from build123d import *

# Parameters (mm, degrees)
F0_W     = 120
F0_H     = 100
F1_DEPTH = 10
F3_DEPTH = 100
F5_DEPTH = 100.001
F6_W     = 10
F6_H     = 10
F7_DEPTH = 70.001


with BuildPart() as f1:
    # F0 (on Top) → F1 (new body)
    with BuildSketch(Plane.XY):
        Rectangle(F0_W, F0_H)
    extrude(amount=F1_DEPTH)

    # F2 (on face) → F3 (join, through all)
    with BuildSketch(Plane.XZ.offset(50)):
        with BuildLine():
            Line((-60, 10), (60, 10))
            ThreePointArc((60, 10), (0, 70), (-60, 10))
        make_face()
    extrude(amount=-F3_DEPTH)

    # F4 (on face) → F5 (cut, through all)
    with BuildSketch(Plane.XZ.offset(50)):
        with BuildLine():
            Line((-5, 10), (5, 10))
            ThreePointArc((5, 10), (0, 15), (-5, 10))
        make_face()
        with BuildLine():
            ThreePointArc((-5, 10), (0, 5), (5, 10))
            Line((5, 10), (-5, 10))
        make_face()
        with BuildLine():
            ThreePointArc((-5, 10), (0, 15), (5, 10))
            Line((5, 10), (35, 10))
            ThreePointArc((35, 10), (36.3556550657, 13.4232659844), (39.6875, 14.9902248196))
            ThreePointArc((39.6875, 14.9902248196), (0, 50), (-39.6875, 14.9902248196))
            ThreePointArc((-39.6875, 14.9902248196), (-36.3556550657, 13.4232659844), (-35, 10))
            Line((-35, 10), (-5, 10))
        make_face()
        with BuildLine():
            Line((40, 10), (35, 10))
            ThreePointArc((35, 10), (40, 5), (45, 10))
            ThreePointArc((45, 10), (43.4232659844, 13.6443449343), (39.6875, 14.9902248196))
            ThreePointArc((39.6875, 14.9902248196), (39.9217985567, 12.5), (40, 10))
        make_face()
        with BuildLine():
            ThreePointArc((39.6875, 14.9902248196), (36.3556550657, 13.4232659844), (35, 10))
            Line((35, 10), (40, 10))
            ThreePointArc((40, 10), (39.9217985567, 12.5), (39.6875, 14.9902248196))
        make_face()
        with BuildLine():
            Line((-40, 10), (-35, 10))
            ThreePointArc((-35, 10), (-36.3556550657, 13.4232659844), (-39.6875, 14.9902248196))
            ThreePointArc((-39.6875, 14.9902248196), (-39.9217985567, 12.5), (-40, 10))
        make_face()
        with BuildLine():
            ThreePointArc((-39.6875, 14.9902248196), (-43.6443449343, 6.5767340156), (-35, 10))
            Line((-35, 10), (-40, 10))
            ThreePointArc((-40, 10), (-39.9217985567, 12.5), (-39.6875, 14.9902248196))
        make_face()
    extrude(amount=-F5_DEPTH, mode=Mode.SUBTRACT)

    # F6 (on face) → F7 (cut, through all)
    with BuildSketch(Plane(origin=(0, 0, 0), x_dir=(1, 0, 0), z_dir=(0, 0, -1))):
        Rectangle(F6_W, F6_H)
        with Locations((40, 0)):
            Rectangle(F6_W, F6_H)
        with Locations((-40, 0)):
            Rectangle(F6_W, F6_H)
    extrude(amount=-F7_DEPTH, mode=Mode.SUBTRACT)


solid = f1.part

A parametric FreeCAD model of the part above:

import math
import FreeCAD as App
import Part
import Sketcher


def add_polygon(sketch, points):
    """Adds a closed chain of lines whose ends are joined by coincident constraints."""
    first, n = sketch.GeometryCount, len(points)
    for a, b in zip(points, points[1:] + points[:1]):
        sketch.addGeometry(Part.LineSegment(App.Vector(*a, 0), App.Vector(*b, 0)), False)
    for i in range(n):
        sketch.addConstraint(Sketcher.Constraint("Coincident", first + i, 2, first + (i + 1) % n, 1))

doc = App.newDocument("Part")
params = doc.addObject("Spreadsheet::Sheet", "Params")
for row, (alias, value) in enumerate([
    ("sketch1_width", "120 mm"),
    ("sketch1_height", "100 mm"),
    ("pad1_length", "10 mm"),
    ("sketch2_radius", "60 mm"),
    ("pad2_length", "100 mm"),
    ("sketch3_radius", "5 mm"),
    ("sketch3_radius2", "40 mm"),
    ("sketch3_width", "30 mm"),
    ("sketch4_width", "10 mm"),
], start=1):
    params.set(f"A{row}", alias)
    params.set(f"B{row}", "=" + value)
    params.setAlias(f"B{row}", alias)

body = doc.addObject("PartDesign::Body", "Body")

# Sketch on XY plane
sketch1 = doc.addObject("Sketcher::SketchObject", "Sketch")
body.addObject(sketch1)
sketch1.AttachmentSupport = (doc.XY_Plane, [""])
sketch1.MapMode = "FlatFace"
add_polygon(sketch1, [(-60, 50), (-60, -50), (60, -50), (60, 50)])  # lines 0-3
sketch1.addConstraint([
    Sketcher.Constraint("Vertical", 0),
    Sketcher.Constraint("Horizontal", 1),
    Sketcher.Constraint("Vertical", 2),
    Sketcher.Constraint("Horizontal", 3),
    Sketcher.Constraint("Symmetric", 0, 2, 2, 2, -1, 1),
    Sketcher.Constraint("DistanceX", 1, 1, 1, 2, 120.0),
    Sketcher.Constraint("DistanceY", 0, 2, 0, 1, 100.0),
])
sketch1.setExpression("Constraints[9]", "Params.sketch1_width")
sketch1.setExpression("Constraints[10]", "Params.sketch1_height")
pad1 = doc.addObject("PartDesign::Pad", "Pad")
body.addObject(pad1)
pad1.Profile = sketch1
pad1.setExpression("Length", "Params.pad1_length")

# Sketch on XZ plane
sketch2 = doc.addObject("Sketcher::SketchObject", "Sketch001")
body.addObject(sketch2)
sketch2.AttachmentSupport = (doc.XZ_Plane, [""])
sketch2.MapMode = "FlatFace"
sketch2.AttachmentOffset = App.Placement(App.Vector(0, 0, 50), App.Rotation())
sketch2.addGeometry([
    Part.LineSegment(App.Vector(-60, 10, 0), App.Vector(60, 10, 0)),
    Part.ArcOfCircle(Part.Circle(App.Vector(0, 10, 0), App.Vector(0, 0, 1), 60), math.radians(0), math.radians(180)),
], False)
sketch2.addConstraint([
    Sketcher.Constraint("Coincident", 0, 1, 1, 2),
    Sketcher.Constraint("Coincident", 1, 1, 0, 2),
    Sketcher.Constraint("Horizontal", 0),
    Sketcher.Constraint("PointOnObject", 1, 3, -2),
    Sketcher.Constraint("Horizontal", 1, 3, 0, 1),
    Sketcher.Constraint("Radius", 1, 60.0),
    Sketcher.Constraint("DistanceY", -1, 1, 1, 3, 10.0),
])
sketch2.setExpression("Constraints[5]", "Params.sketch2_radius")
pad2 = doc.addObject("PartDesign::Pad", "Pad001")
body.addObject(pad2)
pad2.Profile = sketch2
pad2.setExpression("Length", "Params.pad2_length")
pad2.Reversed = True

# Sketch on XZ plane
sketch3 = doc.addObject("Sketcher::SketchObject", "Sketch002")
body.addObject(sketch3)
sketch3.AttachmentSupport = (doc.XZ_Plane, [""])
sketch3.MapMode = "FlatFace"
sketch3.AttachmentOffset = App.Placement(App.Vector(0, 0, 50), App.Rotation())
sketch3.addGeometry([
    Part.ArcOfCircle(Part.Circle(App.Vector(0, 10, 0), App.Vector(0, 0, 1), 5), math.radians(180), math.radians(360)),  # 0
    Part.LineSegment(App.Vector(5, 10, 0), App.Vector(35, 10, 0)),  # 1
    Part.ArcOfCircle(Part.Circle(App.Vector(40, 10, 0), App.Vector(0, 0, 1), 5), math.radians(180), math.radians(360)),  # 2
    Part.ArcOfCircle(Part.Circle(App.Vector(40, 10, 0), App.Vector(0, 0, 1), 5), math.radians(0), math.radians(94)),  # 3
    Part.ArcOfCircle(Part.Circle(App.Vector(0, 10, 0), App.Vector(0, 0, 1), 40), math.radians(7), math.radians(173)),  # 4
    Part.ArcOfCircle(Part.Circle(App.Vector(-40, 10, 0), App.Vector(0, 0, 1), 5), math.radians(86), math.radians(360)),  # 5
    Part.LineSegment(App.Vector(-35, 10, 0), App.Vector(-5, 10, 0)),  # 6
], False)
sketch3.addConstraint([
    Sketcher.Constraint("Coincident", 0, 2, 1, 1),
    Sketcher.Constraint("Coincident", 1, 2, 2, 1),
    Sketcher.Constraint("Tangent", 2, 2, 3, 1),
    Sketcher.Constraint("Coincident", 3, 2, 4, 1),
    Sketcher.Constraint("Coincident", 4, 2, 5, 1),
    Sketcher.Constraint("Coincident", 5, 2, 6, 1),
    Sketcher.Constraint("Coincident", 6, 2, 0, 1),
    Sketcher.Constraint("Horizontal", 1),
    Sketcher.Constraint("Horizontal", 6),
    Sketcher.Constraint("Coincident", 4, 3, 0, 3),
    Sketcher.Constraint("Equal", 0, 2),
    Sketcher.Constraint("Equal", 2, 3),
    Sketcher.Constraint("Equal", 3, 5),
    Sketcher.Constraint("Symmetric", 2, 3, 5, 3, -2),
    Sketcher.Constraint("Symmetric", 0, 2, 6, 2, -2),
    Sketcher.Constraint("Horizontal", 0, 3, 2, 3),
    Sketcher.Constraint("Horizontal", 5, 3, 0, 2),
    Sketcher.Constraint("Horizontal", 1, 2, 2, 2),
    Sketcher.Constraint("Radius", 0, 5.0),
    Sketcher.Constraint("Radius", 4, 40.0),
    Sketcher.Constraint("DistanceX", 1, 1, 1, 2, 30.0),
    Sketcher.Constraint("DistanceY", -1, 1, 0, 3, 10.0),
])
sketch3.setExpression("Constraints[18]", "Params.sketch3_radius")
sketch3.setExpression("Constraints[19]", "Params.sketch3_radius2")
sketch3.setExpression("Constraints[20]", "Params.sketch3_width")
pocket1 = doc.addObject("PartDesign::Pocket", "Pocket")
body.addObject(pocket1)
pocket1.Profile = sketch3
pocket1.Type = "ThroughAll"

# Sketch on XY plane
sketch4 = doc.addObject("Sketcher::SketchObject", "Sketch003")
body.addObject(sketch4)
sketch4.AttachmentSupport = (doc.XY_Plane, [""])
sketch4.MapMode = "FlatFace"
add_polygon(sketch4, [(-5, -5), (-5, 5), (5, 5), (5, -5)])  # lines 0-3
add_polygon(sketch4, [(35, -5), (35, 5), (45, 5), (45, -5)])  # lines 4-7
add_polygon(sketch4, [(-45, -5), (-45, 5), (-35, 5), (-35, -5)])  # lines 8-11
sketch4.addConstraint([
    Sketcher.Constraint("Vertical", 0),
    Sketcher.Constraint("Horizontal", 1),
    Sketcher.Constraint("Vertical", 2),
    Sketcher.Constraint("Horizontal", 3),
    Sketcher.Constraint("Vertical", 4),
    Sketcher.Constraint("Horizontal", 5),
    Sketcher.Constraint("Vertical", 6),
    Sketcher.Constraint("Horizontal", 7),
    Sketcher.Constraint("Vertical", 8),
    Sketcher.Constraint("Horizontal", 9),
    Sketcher.Constraint("Vertical", 10),
    Sketcher.Constraint("Horizontal", 11),
    Sketcher.Constraint("Symmetric", 0, 2, 2, 2, -1, 1),
    Sketcher.Constraint("Symmetric", 6, 2, 8, 2, -1, 1),
    Sketcher.Constraint("Symmetric", 4, 2, 10, 2, -1, 1),
    Sketcher.Constraint("Horizontal", 1, 2, 4, 2),
    Sketcher.Constraint("Horizontal", 3, 2, 6, 2),
    Sketcher.Constraint("Equal", 3, 5),
    Sketcher.Constraint("Equal", 11, 0),
    Sketcher.Constraint("DistanceX", 1, 1, 1, 2, 10.0),
    Sketcher.Constraint("DistanceX", -1, 1, 4, 2, 35.0),
])
sketch4.setExpression("Constraints[31]", "Params.sketch4_width")
pocket2 = doc.addObject("PartDesign::Pocket", "Pocket001")
body.addObject(pocket2)
pocket2.Profile = sketch4
pocket2.Type = "ThroughAll"
pocket2.Reversed = True

doc.recompute()
